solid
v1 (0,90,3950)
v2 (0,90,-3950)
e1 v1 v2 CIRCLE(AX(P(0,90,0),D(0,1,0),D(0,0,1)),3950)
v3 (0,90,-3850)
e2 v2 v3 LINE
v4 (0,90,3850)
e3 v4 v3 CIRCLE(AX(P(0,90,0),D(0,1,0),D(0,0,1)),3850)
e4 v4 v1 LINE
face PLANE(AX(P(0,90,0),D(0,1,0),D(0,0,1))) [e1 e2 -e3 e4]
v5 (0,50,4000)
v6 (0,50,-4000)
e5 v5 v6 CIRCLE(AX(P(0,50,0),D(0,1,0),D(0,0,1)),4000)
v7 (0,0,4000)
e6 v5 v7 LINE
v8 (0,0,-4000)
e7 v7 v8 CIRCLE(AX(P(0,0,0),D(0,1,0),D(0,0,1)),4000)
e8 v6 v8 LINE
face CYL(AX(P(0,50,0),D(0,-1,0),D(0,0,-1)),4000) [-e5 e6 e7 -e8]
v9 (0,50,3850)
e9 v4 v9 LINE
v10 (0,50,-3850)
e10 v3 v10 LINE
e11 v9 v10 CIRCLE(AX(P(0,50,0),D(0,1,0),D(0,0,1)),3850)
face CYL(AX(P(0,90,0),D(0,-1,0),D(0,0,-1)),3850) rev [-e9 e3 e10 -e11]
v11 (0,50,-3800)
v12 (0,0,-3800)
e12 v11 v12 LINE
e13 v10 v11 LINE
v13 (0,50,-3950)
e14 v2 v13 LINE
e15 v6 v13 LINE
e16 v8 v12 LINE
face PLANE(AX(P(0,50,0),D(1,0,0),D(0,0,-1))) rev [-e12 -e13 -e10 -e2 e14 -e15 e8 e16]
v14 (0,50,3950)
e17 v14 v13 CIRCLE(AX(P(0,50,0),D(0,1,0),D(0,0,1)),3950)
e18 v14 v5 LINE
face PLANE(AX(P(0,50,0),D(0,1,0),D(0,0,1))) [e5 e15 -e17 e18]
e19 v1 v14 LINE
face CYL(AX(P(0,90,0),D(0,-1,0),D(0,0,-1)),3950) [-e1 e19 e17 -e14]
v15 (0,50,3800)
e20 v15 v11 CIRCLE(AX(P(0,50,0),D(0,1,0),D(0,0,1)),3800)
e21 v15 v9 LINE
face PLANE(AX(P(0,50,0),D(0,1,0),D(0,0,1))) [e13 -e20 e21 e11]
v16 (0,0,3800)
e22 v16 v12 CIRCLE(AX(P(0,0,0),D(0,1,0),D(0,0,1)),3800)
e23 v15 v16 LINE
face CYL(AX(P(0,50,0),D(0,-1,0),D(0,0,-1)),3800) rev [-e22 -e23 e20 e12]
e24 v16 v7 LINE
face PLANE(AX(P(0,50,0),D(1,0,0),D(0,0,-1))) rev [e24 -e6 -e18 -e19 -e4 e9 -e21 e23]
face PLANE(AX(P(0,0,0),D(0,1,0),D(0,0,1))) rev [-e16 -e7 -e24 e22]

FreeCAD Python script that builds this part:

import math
import FreeCAD as App
import Part
import Sketcher
from FreeCAD import Vector
Q = App.Units.Quantity

doc = App.newDocument("Part")
body = doc.addObject("PartDesign::Body", "Body")

# Sketch on XZ plane
sketch1 = body.newObject("Sketcher::SketchObject", "Sketch")
sketch1.AttachmentSupport = (doc.getObject("XZ_Plane"), [""])
sketch1.MapMode = "FlatFace"
sketch1.addGeometry(Part.LineSegment(Vector(0, -4000, 0), Vector(0, -3800, 0)), False)
sketch1.addGeometry(Part.ArcOfCircle(Part.Circle(Vector(0, 0, 0), Vector(0, 0, 1), 3800), math.radians(-90), math.radians(90)), False)
sketch1.addGeometry(Part.LineSegment(Vector(0, 3800, 0), Vector(0, 4000, 0)), False)
sketch1.addGeometry(Part.ArcOfCircle(Part.Circle(Vector(0, 0, 0), Vector(0, 0, 1), 4000), math.radians(-90), math.radians(90)), False)
sketch1.addConstraint(Sketcher.Constraint("Coincident", 0, 2, 1, 1))
sketch1.addConstraint(Sketcher.Constraint("Coincident", 1, 2, 2, 1))
sketch1.addConstraint(Sketcher.Constraint("Coincident", 2, 2, 3, 2))
sketch1.addConstraint(Sketcher.Constraint("Coincident", 3, 1, 0, 1))
sketch1.addConstraint(Sketcher.Constraint("Vertical", 0))
sketch1.addConstraint(Sketcher.Constraint("Vertical", 2))
sketch1.addConstraint(Sketcher.Constraint("Coincident", 1, 3, -1, 1))
sketch1.addConstraint(Sketcher.Constraint("Coincident", 3, 3, -1, 1))
sketch1.addConstraint(Sketcher.Constraint("PointOnObject", 0, 2, -2))
sketch1.addConstraint(Sketcher.Constraint("PointOnObject", 2, 2, -2))
sketch1.addConstraint(Sketcher.Constraint("Radius", 1, Q("3800 mm")))
sketch1.addConstraint(Sketcher.Constraint("Radius", 3, Q("4000 mm")))
pad1 = body.newObject("PartDesign::Pad", "Pad")
pad1.Profile = sketch1
pad1.Length = 50
pad1.Reversed = True

# Sketch on XZ plane
sketch2 = body.newObject("Sketcher::SketchObject", "Sketch001")
sketch2.AttachmentSupport = (doc.getObject("XZ_Plane"), [""])
sketch2.MapMode = "FlatFace"
sketch2.AttachmentOffset = App.Placement(Vector(0, 0, -50), App.Rotation())
sketch2.addGeometry(Part.LineSegment(Vector(0, -3950, 0), Vector(0, -3850, 0)), False)
sketch2.addGeometry(Part.ArcOfCircle(Part.Circle(Vector(0, 0, 0), Vector(0, 0, 1), 3850), math.radians(-90), math.radians(90)), False)
sketch2.addGeometry(Part.LineSegment(Vector(0, 3850, 0), Vector(0, 3950, 0)), False)
sketch2.addGeometry(Part.ArcOfCircle(Part.Circle(Vector(0, 0, 0), Vector(0, 0, 1), 3950), math.radians(-90), math.radians(90)), False)
sketch2.addConstraint(Sketcher.Constraint("Coincident", 0, 2, 1, 1))
sketch2.addConstraint(Sketcher.Constraint("Coincident", 1, 2, 2, 1))
sketch2.addConstraint(Sketcher.Constraint("Coincident", 2, 2, 3, 2))
sketch2.addConstraint(Sketcher.Constraint("Coincident", 3, 1, 0, 1))
sketch2.addConstraint(Sketcher.Constraint("Vertical", 0))
sketch2.addConstraint(Sketcher.Constraint("Vertical", 2))
sketch2.addConstraint(Sketcher.Constraint("Coincident", 1, 3, -1, 1))
sketch2.addConstraint(Sketcher.Constraint("Coincident", 3, 3, -1, 1))
sketch2.addConstraint(Sketcher.Constraint("PointOnObject", 0, 2, -2))
sketch2.addConstraint(Sketcher.Constraint("PointOnObject", 2, 2, -2))
sketch2.addConstraint(Sketcher.Constraint("Radius", 1, Q("3850 mm")))
sketch2.addConstraint(Sketcher.Constraint("Radius", 3, Q("3950 mm")))
pad2 = body.newObject("PartDesign::Pad", "Pad001")
pad2.Profile = sketch2
pad2.Length = 40
pad2.Reversed = True

doc.recompute()
